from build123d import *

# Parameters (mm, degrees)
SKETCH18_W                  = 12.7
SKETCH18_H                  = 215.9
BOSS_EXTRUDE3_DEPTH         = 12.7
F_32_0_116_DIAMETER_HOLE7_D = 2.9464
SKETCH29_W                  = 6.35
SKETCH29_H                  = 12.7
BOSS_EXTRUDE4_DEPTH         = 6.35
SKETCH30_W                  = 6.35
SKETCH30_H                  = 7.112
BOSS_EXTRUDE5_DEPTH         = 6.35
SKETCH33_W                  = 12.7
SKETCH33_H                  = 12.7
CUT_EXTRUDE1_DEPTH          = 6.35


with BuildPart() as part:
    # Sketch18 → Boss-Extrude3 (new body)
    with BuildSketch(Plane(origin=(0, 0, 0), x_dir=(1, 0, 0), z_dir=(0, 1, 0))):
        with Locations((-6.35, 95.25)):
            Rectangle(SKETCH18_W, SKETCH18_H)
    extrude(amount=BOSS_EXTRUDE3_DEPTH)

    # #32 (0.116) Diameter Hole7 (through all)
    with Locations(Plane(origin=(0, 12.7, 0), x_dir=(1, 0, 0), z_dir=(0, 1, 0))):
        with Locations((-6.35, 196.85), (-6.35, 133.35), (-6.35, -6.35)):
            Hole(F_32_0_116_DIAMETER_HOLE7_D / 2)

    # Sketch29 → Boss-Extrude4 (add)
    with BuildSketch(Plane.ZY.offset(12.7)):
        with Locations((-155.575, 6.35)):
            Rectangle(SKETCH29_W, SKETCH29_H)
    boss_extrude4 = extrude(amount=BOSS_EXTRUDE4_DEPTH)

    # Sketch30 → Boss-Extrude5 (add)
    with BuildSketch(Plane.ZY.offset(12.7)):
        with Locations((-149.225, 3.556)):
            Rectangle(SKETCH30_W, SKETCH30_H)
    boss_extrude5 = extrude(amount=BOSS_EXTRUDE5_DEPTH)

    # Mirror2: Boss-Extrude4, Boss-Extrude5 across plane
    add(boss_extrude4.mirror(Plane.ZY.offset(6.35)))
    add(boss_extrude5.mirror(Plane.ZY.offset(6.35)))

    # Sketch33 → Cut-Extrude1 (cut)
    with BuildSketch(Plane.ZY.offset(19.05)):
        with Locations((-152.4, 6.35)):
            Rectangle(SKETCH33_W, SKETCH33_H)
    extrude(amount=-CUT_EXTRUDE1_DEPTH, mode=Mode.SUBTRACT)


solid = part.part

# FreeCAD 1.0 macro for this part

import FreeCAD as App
import Part
import Sketcher
Q = App.Units.Quantity


def add_polygon(sketch, points):
    """Adds a closed chain of lines whose ends are joined by coincident constraints."""
    first, n = sketch.GeometryCount, len(points)
    for a, b in zip(points, points[1:] + points[:1]):
        sketch.addGeometry(Part.LineSegment(App.Vector(*a, 0), App.Vector(*b, 0)), False)
    for i in range(n):
        sketch.addConstraint(Sketcher.Constraint("Coincident", first + i, 2, first + (i + 1) % n, 1))

doc = App.newDocument("Part")
body = doc.addObject("PartDesign::Body", "Body")

# Sketch on XZ plane
sketch1 = body.newObject("Sketcher::SketchObject", "Sketch")
sketch1.AttachmentSupport = (doc.getObject("XZ_Plane"), [""])
sketch1.MapMode = "FlatFace"
add_polygon(sketch1, [(-12.7, -203.2), (-12.7, 12.7), (0, 12.7), (0, -203.2)])  # lines 0-3
sketch1.addConstraint([
    Sketcher.Constraint("Vertical", 0),
    Sketcher.Constraint("Horizontal", 1),
    Sketcher.Constraint("Vertical", 2),
    Sketcher.Constraint("Horizontal", 3),
    Sketcher.Constraint("PointOnObject", 1, 2, -2),
    Sketcher.Constraint("DistanceX", 1, 1, 1, 2, Q("0.5 in")),
    Sketcher.Constraint("DistanceY", 0, 1, 0, 2, Q("8.5 in")),
    Sketcher.Constraint("DistanceY", 2, 2, -1, 1, Q("8 in")),
])
pad1 = body.newObject("PartDesign::Pad", "Pad")
pad1.Profile = sketch1
pad1.Length = Q("0.5 in")
pad1.Reversed = True

# Sketch on XZ plane
sketch2 = body.newObject("Sketcher::SketchObject", "Sketch001")
sketch2.AttachmentSupport = (doc.getObject("XZ_Plane"), [""])
sketch2.MapMode = "FlatFace"
sketch2.AttachmentOffset = App.Placement(App.Vector(0, 0, -0.5 * 25.4), App.Rotation())
sketch2.addGeometry([
    Part.Circle(App.Vector(-6.35, -196.85, 0), App.Vector(0, 0, 1), 1.4732),
    Part.Circle(App.Vector(-6.35, -133.35, 0), App.Vector(0, 0, 1), 1.4732),
    Part.Circle(App.Vector(-6.35, 6.35, 0), App.Vector(0, 0, 1), 1.4732),
], False)
sketch2.addConstraint([
    Sketcher.Constraint("Equal", 0, 1),
    Sketcher.Constraint("Equal", 1, 2),
    Sketcher.Constraint("Vertical", 0, 3, 1, 3),
    Sketcher.Constraint("Vertical", 1, 3, 2, 3),
    Sketcher.Constraint("Diameter", 0, Q("0.116 in")),
    Sketcher.Constraint("DistanceY", 0, 3, 2, 3, Q("8 in")),
    Sketcher.Constraint("DistanceY", 0, 3, 1, 3, Q("2.5 in")),
    Sketcher.Constraint("DistanceX", 0, 3, -1, 1, Q("0.25 in")),
    Sketcher.Constraint("DistanceY", 0, 3, -1, 1, Q("7.75 in")),
])
doc.recompute()
hole = body.newObject("PartDesign::Hole", "Hole")
hole.Profile = sketch2
hole.ThreadType = "None"
hole.Diameter = Q("0.116 in")
hole.DepthType = "ThroughAll"
hole.Reversed = True

# Sketch on YZ plane
sketch3 = body.newObject("Sketcher::SketchObject", "Sketch002")
sketch3.AttachmentSupport = (doc.getObject("YZ_Plane"), [""])
sketch3.MapMode = "FlatFace"
sketch3.AttachmentOffset = App.Placement(App.Vector(0, 0, -0.5 * 25.4), App.Rotation())
add_polygon(sketch3, [(12.7, -158.75), (0, -158.75), (0, -152.4), (12.7, -152.4)])  # lines 0-3
sketch3.addConstraint([
    Sketcher.Constraint("Horizontal", 0),
    Sketcher.Constraint("Vertical", 1),
    Sketcher.Constraint("Horizontal", 2),
    Sketcher.Constraint("Vertical", 3),
    Sketcher.Constraint("PointOnObject", 0, 2, -2),
    Sketcher.Constraint("DistanceX", 0, 2, 0, 1, Q("0.5 in")),
    Sketcher.Constraint("DistanceY", 1, 2, -1, 1, Q("6 in")),
    Sketcher.Constraint("DistanceY", 1, 1, 1, 2, Q("0.25 in")),
])
pad2 = body.newObject("PartDesign::Pad", "Pad001")
pad2.Profile = sketch3
pad2.Length = Q("0.25 in")
pad2.Reversed = True

# Sketch on YZ plane
sketch4 = body.newObject("Sketcher::SketchObject", "Sketch003")
sketch4.AttachmentSupport = (doc.getObject("YZ_Plane"), [""])
sketch4.MapMode = "FlatFace"
sketch4.AttachmentOffset = App.Placement(App.Vector(0, 0, -0.5 * 25.4), App.Rotation())
add_polygon(sketch4, [(7.112, -152.4), (0, -152.4), (0, -146.05), (7.112, -146.05)])  # lines 0-3
sketch4.addConstraint([
    Sketcher.Constraint("Horizontal", 0),
    Sketcher.Constraint("Vertical", 1),
    Sketcher.Constraint("Horizontal", 2),
    Sketcher.Constraint("Vertical", 3),
    Sketcher.Constraint("PointOnObject", 0, 2, -2),
    Sketcher.Constraint("DistanceY", 0, 2, -1, 1, Q("6 in")),
    Sketcher.Constraint("DistanceX", 0, 2, 0, 1, Q("0.28 in")),
    Sketcher.Constraint("DistanceY", 1, 1, 1, 2, Q("0.25 in")),
])
pad3 = body.newObject("PartDesign::Pad", "Pad002")
pad3.Profile = sketch4
pad3.Length = Q("0.25 in")
pad3.Reversed = True
doc.recompute()

datumplane = body.newObject("PartDesign::Plane", "DatumPlane")
datumplane.AttachmentSupport = (doc.getObject("YZ_Plane"), [""])
datumplane.MapMode = "FlatFace"
datumplane.AttachmentOffset = App.Placement(App.Vector(0, 0, -0.25 * 25.4), App.Rotation())
mirrored = body.newObject("PartDesign::Mirrored", "Mirrored")
mirrored.Originals = [pad2, pad3]
mirrored.MirrorPlane = (datumplane, [""])
body.Tip = mirrored

# Sketch on YZ plane
sketch5 = body.newObject("Sketcher::SketchObject", "Sketch004")
sketch5.AttachmentSupport = (doc.getObject("YZ_Plane"), [""])
sketch5.MapMode = "FlatFace"
sketch5.AttachmentOffset = App.Placement(App.Vector(0, 0, -0.75 * 25.4), App.Rotation())
add_polygon(sketch5, [(12.7, -158.75), (0, -158.75), (0, -146.05), (12.7, -146.05)])  # lines 0-3
sketch5.addConstraint([
    Sketcher.Constraint("Horizontal", 0),
    Sketcher.Constraint("Vertical", 1),
    Sketcher.Constraint("Horizontal", 2),
    Sketcher.Constraint("Vertical", 3),
    Sketcher.Constraint("PointOnObject", 0, 2, -2),
    Sketcher.Constraint("Equal", 2, 1),
    Sketcher.Constraint("DistanceX", 0, 2, 0, 1, Q("0.5 in")),
    Sketcher.Constraint("DistanceY", 0, 2, -1, 1, Q("6.25 in")),
])
pocket1 = body.newObject("PartDesign::Pocket", "Pocket")
pocket1.Profile = sketch5
pocket1.Length = Q("0.25 in")
pocket1.Reversed = True

doc.recompute()
